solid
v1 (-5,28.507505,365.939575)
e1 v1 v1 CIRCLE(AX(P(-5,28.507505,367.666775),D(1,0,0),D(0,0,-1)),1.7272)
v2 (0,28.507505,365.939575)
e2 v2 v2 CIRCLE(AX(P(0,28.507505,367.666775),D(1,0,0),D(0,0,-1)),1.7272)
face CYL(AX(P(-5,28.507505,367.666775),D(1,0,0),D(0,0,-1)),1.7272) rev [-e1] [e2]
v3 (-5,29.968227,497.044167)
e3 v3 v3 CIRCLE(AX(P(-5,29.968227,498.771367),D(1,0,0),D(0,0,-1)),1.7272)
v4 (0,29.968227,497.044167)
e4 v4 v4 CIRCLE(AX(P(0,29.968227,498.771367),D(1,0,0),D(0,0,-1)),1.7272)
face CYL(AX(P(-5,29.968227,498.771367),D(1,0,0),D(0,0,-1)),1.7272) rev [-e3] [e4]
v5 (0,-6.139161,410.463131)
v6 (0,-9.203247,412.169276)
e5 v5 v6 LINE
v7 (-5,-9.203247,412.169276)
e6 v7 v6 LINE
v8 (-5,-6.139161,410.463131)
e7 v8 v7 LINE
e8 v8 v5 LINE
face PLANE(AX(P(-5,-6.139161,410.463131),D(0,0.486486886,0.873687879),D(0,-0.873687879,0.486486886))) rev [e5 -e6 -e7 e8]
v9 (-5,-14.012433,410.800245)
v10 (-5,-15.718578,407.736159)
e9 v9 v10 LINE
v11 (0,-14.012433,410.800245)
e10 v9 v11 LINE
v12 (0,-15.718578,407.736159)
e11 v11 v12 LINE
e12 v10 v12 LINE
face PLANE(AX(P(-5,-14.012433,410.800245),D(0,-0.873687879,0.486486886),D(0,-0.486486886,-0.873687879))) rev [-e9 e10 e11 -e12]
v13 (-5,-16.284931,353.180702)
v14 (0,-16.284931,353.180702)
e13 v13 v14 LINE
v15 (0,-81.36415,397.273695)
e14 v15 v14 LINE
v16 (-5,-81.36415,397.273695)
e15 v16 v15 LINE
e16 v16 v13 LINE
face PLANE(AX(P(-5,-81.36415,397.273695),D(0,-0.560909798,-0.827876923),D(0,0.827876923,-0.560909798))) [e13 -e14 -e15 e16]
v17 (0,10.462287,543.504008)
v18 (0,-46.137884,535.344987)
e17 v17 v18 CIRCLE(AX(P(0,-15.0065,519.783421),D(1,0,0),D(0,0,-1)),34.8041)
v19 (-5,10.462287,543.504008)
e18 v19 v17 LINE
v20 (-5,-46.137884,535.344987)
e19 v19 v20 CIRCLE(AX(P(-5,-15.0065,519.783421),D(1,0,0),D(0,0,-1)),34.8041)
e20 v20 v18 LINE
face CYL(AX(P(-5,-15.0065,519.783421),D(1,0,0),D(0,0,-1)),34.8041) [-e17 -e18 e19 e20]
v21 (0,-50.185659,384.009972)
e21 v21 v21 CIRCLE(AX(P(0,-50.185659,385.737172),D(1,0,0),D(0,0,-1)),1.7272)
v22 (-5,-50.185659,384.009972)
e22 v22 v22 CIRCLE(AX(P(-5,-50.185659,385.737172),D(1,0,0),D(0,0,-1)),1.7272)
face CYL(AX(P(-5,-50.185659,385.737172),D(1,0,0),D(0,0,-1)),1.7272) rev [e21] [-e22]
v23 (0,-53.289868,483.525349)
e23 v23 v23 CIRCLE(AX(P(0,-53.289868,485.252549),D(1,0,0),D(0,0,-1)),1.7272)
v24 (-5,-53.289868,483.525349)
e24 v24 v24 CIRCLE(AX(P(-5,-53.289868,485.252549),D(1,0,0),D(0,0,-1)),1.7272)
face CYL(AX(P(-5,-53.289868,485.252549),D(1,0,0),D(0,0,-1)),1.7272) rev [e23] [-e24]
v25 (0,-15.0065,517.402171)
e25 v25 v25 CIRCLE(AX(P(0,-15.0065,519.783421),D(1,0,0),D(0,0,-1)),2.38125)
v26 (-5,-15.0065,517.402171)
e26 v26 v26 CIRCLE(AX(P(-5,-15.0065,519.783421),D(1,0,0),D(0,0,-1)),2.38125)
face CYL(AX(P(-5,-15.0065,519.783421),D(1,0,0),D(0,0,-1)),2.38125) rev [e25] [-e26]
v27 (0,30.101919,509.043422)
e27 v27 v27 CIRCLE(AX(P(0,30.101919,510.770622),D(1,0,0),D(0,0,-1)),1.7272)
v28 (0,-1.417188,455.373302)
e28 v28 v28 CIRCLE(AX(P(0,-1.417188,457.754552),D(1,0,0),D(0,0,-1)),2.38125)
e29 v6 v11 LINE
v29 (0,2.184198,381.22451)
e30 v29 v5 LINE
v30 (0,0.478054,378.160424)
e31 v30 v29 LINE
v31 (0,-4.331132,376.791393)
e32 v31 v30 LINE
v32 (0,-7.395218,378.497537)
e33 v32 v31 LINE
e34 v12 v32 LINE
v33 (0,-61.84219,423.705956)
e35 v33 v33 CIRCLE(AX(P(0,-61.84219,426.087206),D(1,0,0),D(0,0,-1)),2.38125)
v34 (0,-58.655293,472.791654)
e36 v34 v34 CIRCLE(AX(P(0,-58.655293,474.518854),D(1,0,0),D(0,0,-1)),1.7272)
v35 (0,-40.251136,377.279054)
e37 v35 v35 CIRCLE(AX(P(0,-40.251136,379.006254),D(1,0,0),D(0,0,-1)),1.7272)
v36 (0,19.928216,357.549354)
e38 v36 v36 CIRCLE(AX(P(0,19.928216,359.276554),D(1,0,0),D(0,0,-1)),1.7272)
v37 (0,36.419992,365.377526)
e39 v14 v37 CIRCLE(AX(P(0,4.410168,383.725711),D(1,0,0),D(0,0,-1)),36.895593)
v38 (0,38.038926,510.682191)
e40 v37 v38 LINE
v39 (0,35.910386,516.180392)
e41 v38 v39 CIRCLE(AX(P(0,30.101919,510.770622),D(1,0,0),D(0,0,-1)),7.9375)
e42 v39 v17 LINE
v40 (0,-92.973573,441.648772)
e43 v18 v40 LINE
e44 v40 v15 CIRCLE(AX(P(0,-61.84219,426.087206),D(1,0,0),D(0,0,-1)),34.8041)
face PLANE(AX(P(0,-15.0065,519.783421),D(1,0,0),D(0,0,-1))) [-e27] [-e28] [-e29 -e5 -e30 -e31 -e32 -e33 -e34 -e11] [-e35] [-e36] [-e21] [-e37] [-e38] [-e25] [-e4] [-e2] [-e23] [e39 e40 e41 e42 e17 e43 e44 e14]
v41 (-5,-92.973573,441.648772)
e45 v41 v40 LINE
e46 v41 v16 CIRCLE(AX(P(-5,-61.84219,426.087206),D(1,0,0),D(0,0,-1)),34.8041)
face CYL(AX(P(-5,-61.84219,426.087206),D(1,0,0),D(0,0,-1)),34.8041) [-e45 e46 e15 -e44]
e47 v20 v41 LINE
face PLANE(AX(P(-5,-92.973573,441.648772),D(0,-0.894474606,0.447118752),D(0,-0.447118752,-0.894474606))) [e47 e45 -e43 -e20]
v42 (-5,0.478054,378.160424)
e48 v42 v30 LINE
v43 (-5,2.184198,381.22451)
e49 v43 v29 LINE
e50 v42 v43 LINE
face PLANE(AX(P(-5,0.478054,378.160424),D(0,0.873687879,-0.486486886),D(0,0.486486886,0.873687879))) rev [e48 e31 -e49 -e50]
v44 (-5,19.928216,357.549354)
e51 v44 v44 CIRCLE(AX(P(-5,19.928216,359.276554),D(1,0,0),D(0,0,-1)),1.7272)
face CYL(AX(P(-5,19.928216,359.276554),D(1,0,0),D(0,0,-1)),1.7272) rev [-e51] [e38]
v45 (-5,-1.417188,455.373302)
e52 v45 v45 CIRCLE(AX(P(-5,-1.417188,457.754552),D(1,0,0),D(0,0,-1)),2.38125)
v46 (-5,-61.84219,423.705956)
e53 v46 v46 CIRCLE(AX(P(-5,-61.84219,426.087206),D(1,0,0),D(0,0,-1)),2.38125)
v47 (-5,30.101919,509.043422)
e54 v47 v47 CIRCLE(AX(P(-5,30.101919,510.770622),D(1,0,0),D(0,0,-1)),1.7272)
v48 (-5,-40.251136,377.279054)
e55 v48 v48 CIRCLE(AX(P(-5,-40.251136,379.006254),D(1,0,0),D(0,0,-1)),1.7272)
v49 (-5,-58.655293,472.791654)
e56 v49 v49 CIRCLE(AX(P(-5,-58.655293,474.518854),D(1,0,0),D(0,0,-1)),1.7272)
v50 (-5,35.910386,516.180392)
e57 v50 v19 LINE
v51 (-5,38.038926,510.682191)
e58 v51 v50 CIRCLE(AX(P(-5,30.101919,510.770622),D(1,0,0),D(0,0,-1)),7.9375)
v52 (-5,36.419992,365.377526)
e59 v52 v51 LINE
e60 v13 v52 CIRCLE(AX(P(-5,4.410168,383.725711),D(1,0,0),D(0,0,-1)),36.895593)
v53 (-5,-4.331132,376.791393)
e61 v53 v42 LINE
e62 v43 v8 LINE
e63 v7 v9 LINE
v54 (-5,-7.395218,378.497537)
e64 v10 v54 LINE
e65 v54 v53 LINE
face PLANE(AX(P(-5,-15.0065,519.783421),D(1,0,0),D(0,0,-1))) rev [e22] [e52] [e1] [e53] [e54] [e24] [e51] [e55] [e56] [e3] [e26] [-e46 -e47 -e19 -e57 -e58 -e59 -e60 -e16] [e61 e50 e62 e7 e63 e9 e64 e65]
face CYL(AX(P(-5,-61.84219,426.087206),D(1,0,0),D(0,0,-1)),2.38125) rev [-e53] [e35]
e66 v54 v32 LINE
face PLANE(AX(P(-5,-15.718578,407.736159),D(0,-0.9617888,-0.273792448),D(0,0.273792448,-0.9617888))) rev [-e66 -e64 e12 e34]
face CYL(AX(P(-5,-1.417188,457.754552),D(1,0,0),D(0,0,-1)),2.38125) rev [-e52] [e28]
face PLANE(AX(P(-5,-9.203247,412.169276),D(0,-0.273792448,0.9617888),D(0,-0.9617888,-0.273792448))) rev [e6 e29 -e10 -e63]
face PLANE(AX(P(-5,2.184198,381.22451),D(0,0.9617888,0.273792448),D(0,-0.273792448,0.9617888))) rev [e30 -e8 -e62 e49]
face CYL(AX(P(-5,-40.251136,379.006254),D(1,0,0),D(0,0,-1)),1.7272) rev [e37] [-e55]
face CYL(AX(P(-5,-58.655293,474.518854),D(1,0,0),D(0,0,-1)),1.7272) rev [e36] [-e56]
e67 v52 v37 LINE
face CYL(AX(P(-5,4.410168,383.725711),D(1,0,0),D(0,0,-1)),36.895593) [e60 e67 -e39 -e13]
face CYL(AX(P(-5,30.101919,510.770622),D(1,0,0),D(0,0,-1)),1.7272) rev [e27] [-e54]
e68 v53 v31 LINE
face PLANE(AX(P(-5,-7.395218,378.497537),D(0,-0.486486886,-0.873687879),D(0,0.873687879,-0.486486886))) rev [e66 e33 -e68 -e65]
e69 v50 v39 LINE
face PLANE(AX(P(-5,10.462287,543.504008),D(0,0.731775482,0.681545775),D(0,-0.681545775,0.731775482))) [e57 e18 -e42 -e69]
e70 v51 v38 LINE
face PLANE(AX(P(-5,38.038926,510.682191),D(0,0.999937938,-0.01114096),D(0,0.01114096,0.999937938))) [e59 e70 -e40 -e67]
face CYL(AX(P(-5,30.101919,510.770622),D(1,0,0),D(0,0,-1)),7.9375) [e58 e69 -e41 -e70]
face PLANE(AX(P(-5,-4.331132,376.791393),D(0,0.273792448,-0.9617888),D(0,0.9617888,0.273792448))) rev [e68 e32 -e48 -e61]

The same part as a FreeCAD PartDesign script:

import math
import FreeCAD as App
import Part
import Sketcher

V = App.Vector
Q = App.Units.Quantity


def add_polygon(sketch, points):
    """Adds a closed chain of lines whose ends are joined by coincident constraints."""
    first, n = sketch.GeometryCount, len(points)
    for a, b in zip(points, points[1:] + points[:1]):
        sketch.addGeometry(Part.LineSegment(App.Vector(*a, 0), App.Vector(*b, 0)), False)
    for i in range(n):
        sketch.addConstraint(Sketcher.Constraint("Coincident", first + i, 2, first + (i + 1) % n, 1))

doc = App.newDocument("Part")
body = doc.addObject("PartDesign::Body", "Body")

# Sketch on YZ plane
sketch1 = doc.addObject("Sketcher::SketchObject", "Sketch")
body.addObject(sketch1)
sketch1.AttachmentSupport = (doc.YZ_Plane, [""])
sketch1.MapMode = "FlatFace"
sketch1.addGeometry([
    Part.LineSegment(V(36.4, 365.4, 0), V(38, 510.7, 0)),  # 0
    Part.ArcOfCircle(Part.Circle(V(30.1, 510.8, 0), V(0, 0, 1), 7.9), math.radians(-1), math.radians(43)),  # 1
    Part.LineSegment(V(35.9, 516.2, 0), V(10.5, 543.5, 0)),  # 2
    Part.ArcOfCircle(Part.Circle(V(-15, 519.8, 0), V(0, 0, 1), 34.8), math.radians(43), math.radians(153)),  # 3
    Part.LineSegment(V(-46.1, 535.3, 0), V(-93, 441.6, 0)),  # 4
    Part.ArcOfCircle(Part.Circle(V(-61.8, 426.1, 0), V(0, 0, 1), 34.8), math.radians(153), math.radians(236)),  # 5
    Part.LineSegment(V(-81.4, 397.3, 0), V(-16.3, 353.2, 0)),  # 6
    Part.ArcOfCircle(Part.Circle(V(4.4, 383.7, 0), V(0, 0, 1), 36.9), math.radians(-124), math.radians(-30)),  # 7
    Part.Circle(V(-50.2, 385.7, 0), V(0, 0, 1), 1.7),  # 8
    Part.Circle(V(-40.3, 379, 0), V(0, 0, 1), 1.7),  # 9
    Part.Circle(V(-58.7, 474.5, 0), V(0, 0, 1), 1.7),  # 10
    Part.Circle(V(-53.3, 485.3, 0), V(0, 0, 1), 1.7),  # 11
    Part.Circle(V(19.9, 359.3, 0), V(0, 0, 1), 1.7),  # 12
    Part.Circle(V(28.5, 367.7, 0), V(0, 0, 1), 1.7),  # 13
    Part.Circle(V(30, 498.8, 0), V(0, 0, 1), 1.7),  # 14
    Part.Circle(V(30.1, 510.8, 0), V(0, 0, 1), 1.7),  # 15
], False)
sketch1.addConstraint([
    Sketcher.Constraint("Tangent", 0, 2, 1, 1),
    Sketcher.Constraint("Tangent", 1, 2, 2, 1),
    Sketcher.Constraint("Tangent", 2, 2, 3, 1),
    Sketcher.Constraint("Tangent", 3, 2, 4, 1),
    Sketcher.Constraint("Tangent", 4, 2, 5, 1),
    Sketcher.Constraint("Tangent", 5, 2, 6, 1),
    Sketcher.Constraint("Tangent", 6, 2, 7, 1),
    Sketcher.Constraint("Coincident", 7, 2, 0, 1),
    Sketcher.Constraint("Coincident", 15, 3, 1, 3),
    Sketcher.Constraint("Equal", 3, 5),
    Sketcher.Constraint("Equal", 8, 9),
    Sketcher.Constraint("Equal", 9, 10),
    Sketcher.Constraint("Equal", 10, 11),
    Sketcher.Constraint("Equal", 11, 12),
    Sketcher.Constraint("Equal", 12, 13),
    Sketcher.Constraint("Equal", 13, 14),
    Sketcher.Constraint("Equal", 14, 15),
    Sketcher.Constraint("Diameter", 8, Q("0.136 in")),
    Sketcher.Constraint("Radius", 1, Q("0.3125 in")),
    Sketcher.Constraint("Radius", 3, Q("34.8041 mm")),
    Sketcher.Constraint("Radius", 7, Q("36.895593 mm")),
    Sketcher.Constraint("Distance", 4, Q("104.75 mm")),
    Sketcher.Constraint("DistanceX", 3, 3, -1, 1, Q("15.0065 mm")),
    Sketcher.Constraint("DistanceY", -1, 1, 6, 2, Q("353.180702 mm")),
    Sketcher.Constraint("DistanceY", 1, 3, 3, 3, Q("9.012799 mm")),
    Sketcher.Constraint("DistanceY", 9, 3, 10, 3, Q("95.5126 mm")),
    Sketcher.Constraint("DistanceY", 12, 3, 9, 3, Q("19.7297 mm")),
    Sketcher.Constraint("DistanceX", 14, 3, 0, 2, Q("8.070699 mm")),
    Sketcher.Constraint("DistanceY", 0, 2, 1, 2, Q("5.498201 mm")),
    Sketcher.Constraint("DistanceX", 2, 2, 1, 2, Q("25.4481 mm")),
    Sketcher.Constraint("DistanceY", 8, 3, 4, 2, Q("55.9116 mm")),
    Sketcher.Constraint("DistanceX", 6, 2, 7, 3, Q("20.695099 mm")),
    Sketcher.Constraint("DistanceY", -1, 1, 3, 3, Q("519.783421 mm")),
    Sketcher.Constraint("DistanceX", 5, 3, -1, 1, Q("61.84219 mm")),
    Sketcher.Constraint("DistanceX", 8, 3, -1, 1, Q("50.185659 mm")),
    Sketcher.Constraint("DistanceX", 11, 3, -1, 1, Q("53.289868 mm")),
    Sketcher.Constraint("DistanceY", -1, 1, 11, 3, Q("485.252549 mm")),
    Sketcher.Constraint("DistanceY", 9, 3, 1, 3, Q("131.764368 mm")),
    Sketcher.Constraint("DistanceX", 10, 3, 1, 3, Q("88.757212 mm")),
    Sketcher.Constraint("DistanceX", 7, 3, 12, 3, Q("15.518049 mm")),
    Sketcher.Constraint("DistanceX", 12, 3, 13, 3, Q("8.579289 mm")),
    Sketcher.Constraint("DistanceY", 12, 3, 13, 3, Q("8.390221 mm")),
    Sketcher.Constraint("DistanceX", 9, 3, 13, 3, Q("68.758641 mm")),
    Sketcher.Constraint("DistanceY", 11, 3, 14, 3, Q("13.518818 mm")),
])
pad1 = doc.addObject("PartDesign::Pad", "Pad")
body.addObject(pad1)
pad1.Profile = sketch1
pad1.Length = 5
pad1.Reversed = True

# Sketch on YZ plane
sketch2 = doc.addObject("Sketcher::SketchObject", "Sketch001")
body.addObject(sketch2)
sketch2.AttachmentSupport = (doc.YZ_Plane, [""])
sketch2.MapMode = "FlatFace"
sketch2.addGeometry(Part.Circle(V(-15, 519.8, 0), V(0, 0, 1), 2.4), False)  # 0
sketch2.addGeometry(Part.Circle(V(-1.4, 457.8, 0), V(0, 0, 1), 2.4), False)  # 1
sketch2.addGeometry(Part.Circle(V(-61.8, 426.1, 0), V(0, 0, 1), 2.4), False)  # 2
add_polygon(sketch2, [(-14, 410.8), (-15.7, 407.7), (-7.4, 378.5), (-4.3, 376.8), (0.5, 378.2), (2.2, 381.2), (-6.1, 410.5), (-9.2, 412.2)])  # lines 3-10
sketch2.addConstraint([
    Sketcher.Constraint("Equal", 0, 1),
    Sketcher.Constraint("Equal", 1, 2),
    Sketcher.Constraint("Perpendicular", 3, 5),
    Sketcher.Constraint("Perpendicular", 4, 6),
    Sketcher.Constraint("Perpendicular", 5, 7),
    Sketcher.Constraint("Perpendicular", 6, 8),
    Sketcher.Constraint("Perpendicular", 7, 9),
    Sketcher.Constraint("Perpendicular", 8, 10),
    Sketcher.Constraint("Equal", 3, 5),
    Sketcher.Constraint("Equal", 5, 7),
    Sketcher.Constraint("Equal", 4, 8),
    Sketcher.Constraint("Diameter", 0, Q("0.1875 in")),
    Sketcher.Constraint("DistanceX", 0, 3, -1, 1, Q("15.0065 mm")),
    Sketcher.Constraint("DistanceX", -1, 1, 7, 2, Q("2.184198 mm")),
    Sketcher.Constraint("DistanceX", 9, 2, 6, 2, Q("9.681301 mm")),
    Sketcher.Constraint("Distance", 3, Q("3.507072 mm")),
    Sketcher.Constraint("Distance", 4, Q("30.400252 mm")),
    Sketcher.Constraint("Distance", 6, Q("5.000252 mm")),
    Sketcher.Constraint("DistanceY", -1, 1, 0, 3, Q("519.783421 mm")),
    Sketcher.Constraint("DistanceX", 2, 3, -1, 1, Q("61.84219 mm")),
    Sketcher.Constraint("DistanceY", -1, 1, 3, 2, Q("407.736159 mm")),
    Sketcher.Constraint("DistanceX", 4, 2, -1, 1, Q("7.395218 mm")),
    Sketcher.Constraint("DistanceY", 1, 3, 0, 3, Q("62.028869 mm")),
    Sketcher.Constraint("DistanceX", 3, 2, 1, 3, Q("14.30139 mm")),
    Sketcher.Constraint("DistanceY", 4, 2, 2, 3, Q("47.589669 mm")),
])
pocket1 = doc.addObject("PartDesign::Pocket", "Pocket")
body.addObject(pocket1)
pocket1.Profile = sketch2
pocket1.Type = "ThroughAll"

doc.recompute()
